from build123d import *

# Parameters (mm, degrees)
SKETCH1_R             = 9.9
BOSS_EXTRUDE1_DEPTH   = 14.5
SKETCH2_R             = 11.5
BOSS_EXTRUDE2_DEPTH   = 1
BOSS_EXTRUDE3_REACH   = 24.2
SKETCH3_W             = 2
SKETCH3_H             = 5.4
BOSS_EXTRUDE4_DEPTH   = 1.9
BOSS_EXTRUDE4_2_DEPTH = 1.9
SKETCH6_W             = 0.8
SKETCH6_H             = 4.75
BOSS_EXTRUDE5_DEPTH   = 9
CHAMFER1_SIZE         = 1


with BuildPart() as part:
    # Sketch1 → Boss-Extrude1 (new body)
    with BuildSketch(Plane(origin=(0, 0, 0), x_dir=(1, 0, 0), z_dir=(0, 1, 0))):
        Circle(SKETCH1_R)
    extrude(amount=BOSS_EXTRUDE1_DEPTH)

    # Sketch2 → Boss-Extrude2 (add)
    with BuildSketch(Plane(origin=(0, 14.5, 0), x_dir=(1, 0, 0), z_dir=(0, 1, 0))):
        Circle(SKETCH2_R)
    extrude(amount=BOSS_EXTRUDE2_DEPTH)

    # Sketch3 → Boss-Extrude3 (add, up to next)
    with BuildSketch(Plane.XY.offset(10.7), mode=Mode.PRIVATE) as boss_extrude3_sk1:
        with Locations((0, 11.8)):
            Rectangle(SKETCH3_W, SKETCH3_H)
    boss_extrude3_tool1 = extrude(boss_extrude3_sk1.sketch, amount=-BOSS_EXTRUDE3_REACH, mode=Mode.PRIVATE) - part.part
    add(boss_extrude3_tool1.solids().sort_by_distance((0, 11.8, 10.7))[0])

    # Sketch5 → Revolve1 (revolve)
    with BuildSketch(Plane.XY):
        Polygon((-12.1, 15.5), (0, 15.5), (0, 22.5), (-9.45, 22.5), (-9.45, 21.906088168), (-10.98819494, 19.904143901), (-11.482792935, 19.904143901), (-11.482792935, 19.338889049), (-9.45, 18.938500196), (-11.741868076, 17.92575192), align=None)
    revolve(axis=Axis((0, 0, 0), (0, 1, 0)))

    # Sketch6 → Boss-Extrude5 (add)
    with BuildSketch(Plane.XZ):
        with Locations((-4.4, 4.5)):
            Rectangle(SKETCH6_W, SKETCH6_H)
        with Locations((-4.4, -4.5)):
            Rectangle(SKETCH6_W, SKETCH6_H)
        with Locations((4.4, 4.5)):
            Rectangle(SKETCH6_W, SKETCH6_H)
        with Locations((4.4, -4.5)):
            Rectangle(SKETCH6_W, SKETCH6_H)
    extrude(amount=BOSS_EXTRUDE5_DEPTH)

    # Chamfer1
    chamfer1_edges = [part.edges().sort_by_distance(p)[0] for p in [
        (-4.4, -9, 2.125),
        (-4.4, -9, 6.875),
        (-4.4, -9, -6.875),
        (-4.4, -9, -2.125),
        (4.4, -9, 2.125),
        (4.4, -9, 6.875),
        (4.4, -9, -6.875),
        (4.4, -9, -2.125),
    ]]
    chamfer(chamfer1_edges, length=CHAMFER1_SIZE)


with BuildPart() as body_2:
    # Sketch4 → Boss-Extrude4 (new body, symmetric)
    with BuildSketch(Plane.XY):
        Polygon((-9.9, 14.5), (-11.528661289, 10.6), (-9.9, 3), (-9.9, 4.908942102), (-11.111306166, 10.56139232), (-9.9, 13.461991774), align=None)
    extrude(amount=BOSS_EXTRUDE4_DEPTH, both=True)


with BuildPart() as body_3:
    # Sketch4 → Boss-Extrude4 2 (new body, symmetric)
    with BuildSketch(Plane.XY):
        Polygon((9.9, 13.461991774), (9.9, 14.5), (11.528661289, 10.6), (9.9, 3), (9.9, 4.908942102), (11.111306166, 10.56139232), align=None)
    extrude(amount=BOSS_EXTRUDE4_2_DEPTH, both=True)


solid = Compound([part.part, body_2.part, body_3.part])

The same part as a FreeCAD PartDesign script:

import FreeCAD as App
import Part
import Sketcher
Q = App.Units.Quantity


def edges_at(feature, points):
    """Names of the edges that pass closest to the given points."""
    edges = feature.Shape.Edges
    near = lambda p: min(range(len(edges)), key=lambda i: edges[i].distToShape(Part.Vertex(*p))[0])
    return sorted({f"Edge{near(p) + 1}" for p in points})

doc = App.newDocument("Part")
body = doc.addObject("PartDesign::Body", "Body")

# Sketch on XZ plane
sketch1 = body.newObject("Sketcher::SketchObject", "Sketch")
sketch1.AttachmentSupport = (doc.getObject("XZ_Plane"), [""])
sketch1.MapMode = "FlatFace"
sketch1.addGeometry(Part.Circle(App.Vector(0, 0, 0), App.Vector(0, 0, 1), 9.9), False)
sketch1.addConstraint([
    Sketcher.Constraint("Coincident", 0, 3, -1, 1),
    Sketcher.Constraint("Diameter", 0, Q("19.8 mm")),
])
pad1 = body.newObject("PartDesign::Pad", "Pad")
pad1.Profile = sketch1
pad1.Length = 14.5
pad1.Reversed = True

# Sketch on XZ plane
sketch2 = body.newObject("Sketcher::SketchObject", "Sketch001")
sketch2.AttachmentSupport = (doc.getObject("XZ_Plane"), [""])
sketch2.MapMode = "FlatFace"
sketch2.AttachmentOffset = App.Placement(App.Vector(0, 0, -14.5), App.Rotation())
sketch2.addGeometry(Part.Circle(App.Vector(0, 0, 0), App.Vector(0, 0, 1), 11.5), False)
sketch2.addConstraint([
    Sketcher.Constraint("Coincident", 0, 3, -1, 1),
    Sketcher.Constraint("Diameter", 0, Q("23 mm")),
])
pad2 = body.newObject("PartDesign::Pad", "Pad001")
pad2.Profile = sketch2
pad2.Length = 1
pad2.Reversed = True

# Sketch on XY plane
sketch3 = body.newObject("Sketcher::SketchObject", "Sketch002")
sketch3.AttachmentSupport = (doc.getObject("XY_Plane"), [""])
sketch3.MapMode = "FlatFace"
sketch3.AttachmentOffset = App.Placement(App.Vector(0, 0, 10.7), App.Rotation())
sketch3.addGeometry([
    Part.LineSegment(App.Vector(-1, 14.5, 0), App.Vector(-1, 9.1, 0)),
    Part.LineSegment(App.Vector(-1, 9.1, 0), App.Vector(1, 9.1, 0)),
    Part.LineSegment(App.Vector(1, 9.1, 0), App.Vector(1, 14.5, 0)),
    Part.LineSegment(App.Vector(1, 14.5, 0), App.Vector(-1, 14.5, 0)),
], False)
sketch3.addConstraint([
    Sketcher.Constraint("Coincident", 0, 2, 1, 1),
    Sketcher.Constraint("Coincident", 1, 2, 2, 1),
    Sketcher.Constraint("Coincident", 2, 2, 3, 1),
    Sketcher.Constraint("Coincident", 3, 2, 0, 1),
    Sketcher.Constraint("Vertical", 0),
    Sketcher.Constraint("Horizontal", 1),
    Sketcher.Constraint("Vertical", 2),
    Sketcher.Constraint("Horizontal", 3),
    Sketcher.Constraint("DistanceX", 1, 1, 1, 2, Q("2 mm")),
    Sketcher.Constraint("DistanceY", 0, 2, 0, 1, Q("5.4 mm")),
    Sketcher.Constraint("DistanceX", 0, 2, -1, 1, Q("1 mm")),
    Sketcher.Constraint("DistanceY", -1, 1, 0, 2, Q("9.1 mm")),
])
pad3 = body.newObject("PartDesign::Pad", "Pad002")
pad3.Profile = sketch3
pad3.Type = "UpToFirst"
pad3.Reversed = True

# Sketch on XY plane
sketch4 = body.newObject("Sketcher::SketchObject", "Sketch003")
sketch4.AttachmentSupport = (doc.getObject("XY_Plane"), [""])
sketch4.MapMode = "FlatFace"
sketch4.addGeometry([
    Part.LineSegment(App.Vector(-12.1, 15.5, 0), App.Vector(0, 15.5, 0)),  # 0
    Part.LineSegment(App.Vector(0, 15.5, 0), App.Vector(0, 22.5, 0)),  # 1
    Part.LineSegment(App.Vector(0, 22.5, 0), App.Vector(-9.45, 22.5, 0)),  # 2
    Part.LineSegment(App.Vector(-9.45, 22.5, 0), App.Vector(-9.45, 21.906088, 0)),  # 3
    Part.LineSegment(App.Vector(-9.45, 21.906088, 0), App.Vector(-10.988195, 19.904144, 0)),  # 4
    Part.LineSegment(App.Vector(-10.988195, 19.904144, 0), App.Vector(-11.482793, 19.904144, 0)),  # 5
    Part.LineSegment(App.Vector(-11.482793, 19.904144, 0), App.Vector(-11.482793, 19.338889, 0)),  # 6
    Part.LineSegment(App.Vector(-11.482793, 19.338889, 0), App.Vector(-9.45, 18.9385, 0)),  # 7
    Part.LineSegment(App.Vector(-9.45, 18.9385, 0), App.Vector(-11.741868, 17.925752, 0)),  # 8
    Part.LineSegment(App.Vector(-11.741868, 17.925752, 0), App.Vector(-12.1, 15.5, 0)),  # 9
], False)
sketch4.addConstraint([
    Sketcher.Constraint("Coincident", 0, 2, 1, 1),
    Sketcher.Constraint("Coincident", 1, 2, 2, 1),
    Sketcher.Constraint("Coincident", 2, 2, 3, 1),
    Sketcher.Constraint("Coincident", 3, 2, 4, 1),
    Sketcher.Constraint("Coincident", 4, 2, 5, 1),
    Sketcher.Constraint("Coincident", 5, 2, 6, 1),
    Sketcher.Constraint("Coincident", 6, 2, 7, 1),
    Sketcher.Constraint("Coincident", 7, 2, 8, 1),
    Sketcher.Constraint("Coincident", 8, 2, 9, 1),
    Sketcher.Constraint("Coincident", 9, 2, 0, 1),
    Sketcher.Constraint("Horizontal", 0),
    Sketcher.Constraint("Vertical", 1),
    Sketcher.Constraint("Horizontal", 2),
    Sketcher.Constraint("Vertical", 3),
    Sketcher.Constraint("Horizontal", 5),
    Sketcher.Constraint("Vertical", 6),
    Sketcher.Constraint("PointOnObject", 0, 2, -2),
    Sketcher.Constraint("Vertical", 3, 2, 7, 2),
    Sketcher.Constraint("DistanceY", 1, 1, 1, 2, Q("7 mm")),
    Sketcher.Constraint("DistanceX", 0, 1, 0, 2, Q("12.1 mm")),
    Sketcher.Constraint("DistanceX", 2, 2, 2, 1, Q("9.45 mm")),
    Sketcher.Constraint("DistanceY", -1, 1, 0, 2, Q("15.5 mm")),
    Sketcher.Constraint("DistanceY", 3, 2, 3, 1, Q("0.593912 mm")),
    Sketcher.Constraint("DistanceY", -1, 1, 7, 2, Q("18.9385 mm")),
    Sketcher.Constraint("DistanceY", 6, 2, 3, 2, Q("2.567199 mm")),
    Sketcher.Constraint("Distance", 7, Q("2.071849 mm")),
    Sketcher.Constraint("DistanceX", 5, 2, 5, 1, Q("0.494598 mm")),
    Sketcher.Constraint("DistanceY", 6, 2, 6, 1, Q("0.565255 mm")),
    Sketcher.Constraint("DistanceX", 8, 2, -1, 1, Q("11.741868 mm")),
    Sketcher.Constraint("DistanceY", -1, 1, 8, 2, Q("17.925752 mm")),
])
revolution = body.newObject("PartDesign::Revolution", "Revolution")
revolution.Profile = sketch4
revolution.ReferenceAxis = (sketch4, ["V_Axis"])
revolution.Angle = 360

# Sketch on XZ plane
sketch5 = body.newObject("Sketcher::SketchObject", "Sketch004")
sketch5.AttachmentSupport = (doc.getObject("XZ_Plane"), [""])
sketch5.MapMode = "FlatFace"
sketch5.addGeometry([
    Part.LineSegment(App.Vector(-4.8, 6.875, 0), App.Vector(-4.8, 2.125, 0)),  # 0
    Part.LineSegment(App.Vector(-4.8, 2.125, 0), App.Vector(-4, 2.125, 0)),  # 1
    Part.LineSegment(App.Vector(-4, 2.125, 0), App.Vector(-4, 6.875, 0)),  # 2
    Part.LineSegment(App.Vector(-4, 6.875, 0), App.Vector(-4.8, 6.875, 0)),  # 3
    Part.LineSegment(App.Vector(-4.8, -2.125, 0), App.Vector(-4.8, -6.875, 0)),  # 4
    Part.LineSegment(App.Vector(-4.8, -6.875, 0), App.Vector(-4, -6.875, 0)),  # 5
    Part.LineSegment(App.Vector(-4, -6.875, 0), App.Vector(-4, -2.125, 0)),  # 6
    Part.LineSegment(App.Vector(-4, -2.125, 0), App.Vector(-4.8, -2.125, 0)),  # 7
    Part.LineSegment(App.Vector(4, 6.875, 0), App.Vector(4, 2.125, 0)),  # 8
    Part.LineSegment(App.Vector(4, 2.125, 0), App.Vector(4.8, 2.125, 0)),  # 9
    Part.LineSegment(App.Vector(4.8, 2.125, 0), App.Vector(4.8, 6.875, 0)),  # 10
    Part.LineSegment(App.Vector(4.8, 6.875, 0), App.Vector(4, 6.875, 0)),  # 11
    Part.LineSegment(App.Vector(4, -2.125, 0), App.Vector(4, -6.875, 0)),  # 12
    Part.LineSegment(App.Vector(4, -6.875, 0), App.Vector(4.8, -6.875, 0)),  # 13
    Part.LineSegment(App.Vector(4.8, -6.875, 0), App.Vector(4.8, -2.125, 0)),  # 14
    Part.LineSegment(App.Vector(4.8, -2.125, 0), App.Vector(4, -2.125, 0)),  # 15
], False)
sketch5.addConstraint([
    Sketcher.Constraint("Coincident", 0, 2, 1, 1),
    Sketcher.Constraint("Coincident", 1, 2, 2, 1),
    Sketcher.Constraint("Coincident", 2, 2, 3, 1),
    Sketcher.Constraint("Coincident", 3, 2, 0, 1),
    Sketcher.Constraint("Coincident", 4, 2, 5, 1),
    Sketcher.Constraint("Coincident", 5, 2, 6, 1),
    Sketcher.Constraint("Coincident", 6, 2, 7, 1),
    Sketcher.Constraint("Coincident", 7, 2, 4, 1),
    Sketcher.Constraint("Coincident", 8, 2, 9, 1),
    Sketcher.Constraint("Coincident", 9, 2, 10, 1),
    Sketcher.Constraint("Coincident", 10, 2, 11, 1),
    Sketcher.Constraint("Coincident", 11, 2, 8, 1),
    Sketcher.Constraint("Coincident", 12, 2, 13, 1),
    Sketcher.Constraint("Coincident", 13, 2, 14, 1),
    Sketcher.Constraint("Coincident", 14, 2, 15, 1),
    Sketcher.Constraint("Coincident", 15, 2, 12, 1),
    Sketcher.Constraint("Vertical", 0),
    Sketcher.Constraint("Horizontal", 1),
    Sketcher.Constraint("Vertical", 2),
    Sketcher.Constraint("Horizontal", 3),
    Sketcher.Constraint("Vertical", 4),
    Sketcher.Constraint("Horizontal", 5),
    Sketcher.Constraint("Vertical", 6),
    Sketcher.Constraint("Horizontal", 7),
    Sketcher.Constraint("Vertical", 8),
    Sketcher.Constraint("Horizontal", 9),
    Sketcher.Constraint("Vertical", 10),
    Sketcher.Constraint("Horizontal", 11),
    Sketcher.Constraint("Vertical", 12),
    Sketcher.Constraint("Horizontal", 13),
    Sketcher.Constraint("Vertical", 14),
    Sketcher.Constraint("Horizontal", 15),
    Sketcher.Constraint("Symmetric", 6, 2, 8, 2, -1, 1),
    Sketcher.Constraint("Symmetric", 4, 2, 10, 2, -1, 1),
    Sketcher.Constraint("Symmetric", 2, 2, 12, 2, -1, 1),
    Sketcher.Constraint("Symmetric", 0, 2, 14, 2, -1, 1),
    Sketcher.Constraint("Symmetric", 1, 2, 8, 2, -2),
    Sketcher.Constraint("Symmetric", 3, 2, 10, 2, -2),
    Sketcher.Constraint("DistanceX", 1, 1, 1, 2, Q("0.8 mm")),
    Sketcher.Constraint("DistanceX", 1, 2, -1, 1, Q("4 mm")),
    Sketcher.Constraint("DistanceY", 4, 2, 0, 2, Q("9 mm")),
    Sketcher.Constraint("DistanceY", 0, 2, 0, 1, Q("4.75 mm")),
])
pad4 = body.newObject("PartDesign::Pad", "Pad003")
pad4.Profile = sketch5
pad4.Length = 9
doc.recompute()

chamfer = body.newObject("PartDesign::Chamfer", "Chamfer")
chamfer.Base = (pad4, edges_at(pad4, [
    (-4.4, -9, 2.125),
    (-4.4, -9, 6.875),
    (-4.4, -9, -6.875),
    (-4.4, -9, -2.125),
    (4.4, -9, 2.125),
    (4.4, -9, 6.875),
    (4.4, -9, -6.875),
    (4.4, -9, -2.125),
]))
chamfer.Size = 1
body2 = doc.addObject("PartDesign::Body", "Body001")

# Sketch on XY plane
sketch6 = body2.newObject("Sketcher::SketchObject", "Sketch005")
sketch6.AttachmentSupport = (doc.getObject("XY_Plane001"), [""])
sketch6.MapMode = "FlatFace"
sketch6.addGeometry([
    Part.LineSegment(App.Vector(-9.9, 14.5, 0), App.Vector(-11.528661, 10.6, 0)),  # 0
    Part.LineSegment(App.Vector(-11.528661, 10.6, 0), App.Vector(-9.9, 3, 0)),  # 1
    Part.LineSegment(App.Vector(-9.9, 3, 0), App.Vector(-9.9, 4.908942, 0)),  # 2
    Part.LineSegment(App.Vector(-9.9, 4.908942, 0), App.Vector(-11.111306, 10.561392, 0)),  # 3
    Part.LineSegment(App.Vector(-11.111306, 10.561392, 0), App.Vector(-9.9, 13.461992, 0)),  # 4
    Part.LineSegment(App.Vector(-9.9, 13.461992, 0), App.Vector(-9.9, 14.5, 0)),  # 5
], False)
sketch6.addConstraint([
    Sketcher.Constraint("Coincident", 0, 2, 1, 1),
    Sketcher.Constraint("Coincident", 1, 2, 2, 1),
    Sketcher.Constraint("Coincident", 2, 2, 3, 1),
    Sketcher.Constraint("Coincident", 3, 2, 4, 1),
    Sketcher.Constraint("Coincident", 4, 2, 5, 1),
    Sketcher.Constraint("Coincident", 5, 2, 0, 1),
    Sketcher.Constraint("Vertical", 2),
    Sketcher.Constraint("Vertical", 5),
    Sketcher.Constraint("Parallel", 1, 3),
    Sketcher.Constraint("Parallel", 0, 4),
    Sketcher.Constraint("Vertical", 2, 2, 4, 2),
    Sketcher.Constraint("DistanceY", -1, 1, 1, 2, Q("3 mm")),
    Sketcher.Constraint("DistanceY", -1, 1, 0, 2, Q("10.6 mm")),
    Sketcher.Constraint("DistanceX", 1, 2, -1, 1, Q("9.9 mm")),
    Sketcher.Constraint("DistanceY", -1, 1, 5, 2, Q("14.5 mm")),
    Sketcher.Constraint("DistanceY", 5, 1, 5, 2, Q("1.038008 mm")),
    Sketcher.Constraint("DistanceY", 3, 2, 4, 2, Q("2.900599 mm")),
    Sketcher.Constraint("Distance", 0, Q("4.22641 mm")),
])
pad5 = body2.newObject("PartDesign::Pad", "Pad004")
pad5.Profile = sketch6
pad5.Length = 3.8
pad5.Midplane = True
body3 = doc.addObject("PartDesign::Body", "Body002")

# Sketch on XY plane
sketch7 = body3.newObject("Sketcher::SketchObject", "Sketch006")
sketch7.AttachmentSupport = (doc.getObject("XY_Plane002"), [""])
sketch7.MapMode = "FlatFace"
sketch7.addGeometry([
    Part.LineSegment(App.Vector(9.9, 14.5, 0), App.Vector(9.9, 13.461992, 0)),  # 0
    Part.LineSegment(App.Vector(9.9, 13.461992, 0), App.Vector(11.111306, 10.561392, 0)),  # 1
    Part.LineSegment(App.Vector(11.111306, 10.561392, 0), App.Vector(9.9, 4.908942, 0)),  # 2
    Part.LineSegment(App.Vector(9.9, 4.908942, 0), App.Vector(9.9, 3, 0)),  # 3
    Part.LineSegment(App.Vector(9.9, 3, 0), App.Vector(11.528661, 10.6, 0)),  # 4
    Part.LineSegment(App.Vector(11.528661, 10.6, 0), App.Vector(9.9, 14.5, 0)),  # 5
], False)
sketch7.addConstraint([
    Sketcher.Constraint("Coincident", 0, 2, 1, 1),
    Sketcher.Constraint("Coincident", 1, 2, 2, 1),
    Sketcher.Constraint("Coincident", 2, 2, 3, 1),
    Sketcher.Constraint("Coincident", 3, 2, 4, 1),
    Sketcher.Constraint("Coincident", 4, 2, 5, 1),
    Sketcher.Constraint("Coincident", 5, 2, 0, 1),
    Sketcher.Constraint("Vertical", 0),
    Sketcher.Constraint("Vertical", 3),
    Sketcher.Constraint("Parallel", 2, 4),
    Sketcher.Constraint("Parallel", 1, 5),
    Sketcher.Constraint("Vertical", 0, 2, 2, 2),
    Sketcher.Constraint("DistanceY", -1, 1, 3, 2, Q("3 mm")),
    Sketcher.Constraint("DistanceX", -1, 1, 0, 2, Q("9.9 mm")),
    Sketcher.Constraint("DistanceY", -1, 1, 4, 2, Q("10.6 mm")),
    Sketcher.Constraint("DistanceY", -1, 1, 5, 2, Q("14.5 mm")),
    Sketcher.Constraint("DistanceY", 0, 2, 0, 1, Q("1.038008 mm")),
    Sketcher.Constraint("DistanceY", 1, 2, 0, 2, Q("2.900599 mm")),
    Sketcher.Constraint("Distance", 4, Q("7.77255 mm")),
])
pad6 = body3.newObject("PartDesign::Pad", "Pad005")
pad6.Profile = sketch7
pad6.Length = 3.8
pad6.Midplane = True

doc.recompute()
